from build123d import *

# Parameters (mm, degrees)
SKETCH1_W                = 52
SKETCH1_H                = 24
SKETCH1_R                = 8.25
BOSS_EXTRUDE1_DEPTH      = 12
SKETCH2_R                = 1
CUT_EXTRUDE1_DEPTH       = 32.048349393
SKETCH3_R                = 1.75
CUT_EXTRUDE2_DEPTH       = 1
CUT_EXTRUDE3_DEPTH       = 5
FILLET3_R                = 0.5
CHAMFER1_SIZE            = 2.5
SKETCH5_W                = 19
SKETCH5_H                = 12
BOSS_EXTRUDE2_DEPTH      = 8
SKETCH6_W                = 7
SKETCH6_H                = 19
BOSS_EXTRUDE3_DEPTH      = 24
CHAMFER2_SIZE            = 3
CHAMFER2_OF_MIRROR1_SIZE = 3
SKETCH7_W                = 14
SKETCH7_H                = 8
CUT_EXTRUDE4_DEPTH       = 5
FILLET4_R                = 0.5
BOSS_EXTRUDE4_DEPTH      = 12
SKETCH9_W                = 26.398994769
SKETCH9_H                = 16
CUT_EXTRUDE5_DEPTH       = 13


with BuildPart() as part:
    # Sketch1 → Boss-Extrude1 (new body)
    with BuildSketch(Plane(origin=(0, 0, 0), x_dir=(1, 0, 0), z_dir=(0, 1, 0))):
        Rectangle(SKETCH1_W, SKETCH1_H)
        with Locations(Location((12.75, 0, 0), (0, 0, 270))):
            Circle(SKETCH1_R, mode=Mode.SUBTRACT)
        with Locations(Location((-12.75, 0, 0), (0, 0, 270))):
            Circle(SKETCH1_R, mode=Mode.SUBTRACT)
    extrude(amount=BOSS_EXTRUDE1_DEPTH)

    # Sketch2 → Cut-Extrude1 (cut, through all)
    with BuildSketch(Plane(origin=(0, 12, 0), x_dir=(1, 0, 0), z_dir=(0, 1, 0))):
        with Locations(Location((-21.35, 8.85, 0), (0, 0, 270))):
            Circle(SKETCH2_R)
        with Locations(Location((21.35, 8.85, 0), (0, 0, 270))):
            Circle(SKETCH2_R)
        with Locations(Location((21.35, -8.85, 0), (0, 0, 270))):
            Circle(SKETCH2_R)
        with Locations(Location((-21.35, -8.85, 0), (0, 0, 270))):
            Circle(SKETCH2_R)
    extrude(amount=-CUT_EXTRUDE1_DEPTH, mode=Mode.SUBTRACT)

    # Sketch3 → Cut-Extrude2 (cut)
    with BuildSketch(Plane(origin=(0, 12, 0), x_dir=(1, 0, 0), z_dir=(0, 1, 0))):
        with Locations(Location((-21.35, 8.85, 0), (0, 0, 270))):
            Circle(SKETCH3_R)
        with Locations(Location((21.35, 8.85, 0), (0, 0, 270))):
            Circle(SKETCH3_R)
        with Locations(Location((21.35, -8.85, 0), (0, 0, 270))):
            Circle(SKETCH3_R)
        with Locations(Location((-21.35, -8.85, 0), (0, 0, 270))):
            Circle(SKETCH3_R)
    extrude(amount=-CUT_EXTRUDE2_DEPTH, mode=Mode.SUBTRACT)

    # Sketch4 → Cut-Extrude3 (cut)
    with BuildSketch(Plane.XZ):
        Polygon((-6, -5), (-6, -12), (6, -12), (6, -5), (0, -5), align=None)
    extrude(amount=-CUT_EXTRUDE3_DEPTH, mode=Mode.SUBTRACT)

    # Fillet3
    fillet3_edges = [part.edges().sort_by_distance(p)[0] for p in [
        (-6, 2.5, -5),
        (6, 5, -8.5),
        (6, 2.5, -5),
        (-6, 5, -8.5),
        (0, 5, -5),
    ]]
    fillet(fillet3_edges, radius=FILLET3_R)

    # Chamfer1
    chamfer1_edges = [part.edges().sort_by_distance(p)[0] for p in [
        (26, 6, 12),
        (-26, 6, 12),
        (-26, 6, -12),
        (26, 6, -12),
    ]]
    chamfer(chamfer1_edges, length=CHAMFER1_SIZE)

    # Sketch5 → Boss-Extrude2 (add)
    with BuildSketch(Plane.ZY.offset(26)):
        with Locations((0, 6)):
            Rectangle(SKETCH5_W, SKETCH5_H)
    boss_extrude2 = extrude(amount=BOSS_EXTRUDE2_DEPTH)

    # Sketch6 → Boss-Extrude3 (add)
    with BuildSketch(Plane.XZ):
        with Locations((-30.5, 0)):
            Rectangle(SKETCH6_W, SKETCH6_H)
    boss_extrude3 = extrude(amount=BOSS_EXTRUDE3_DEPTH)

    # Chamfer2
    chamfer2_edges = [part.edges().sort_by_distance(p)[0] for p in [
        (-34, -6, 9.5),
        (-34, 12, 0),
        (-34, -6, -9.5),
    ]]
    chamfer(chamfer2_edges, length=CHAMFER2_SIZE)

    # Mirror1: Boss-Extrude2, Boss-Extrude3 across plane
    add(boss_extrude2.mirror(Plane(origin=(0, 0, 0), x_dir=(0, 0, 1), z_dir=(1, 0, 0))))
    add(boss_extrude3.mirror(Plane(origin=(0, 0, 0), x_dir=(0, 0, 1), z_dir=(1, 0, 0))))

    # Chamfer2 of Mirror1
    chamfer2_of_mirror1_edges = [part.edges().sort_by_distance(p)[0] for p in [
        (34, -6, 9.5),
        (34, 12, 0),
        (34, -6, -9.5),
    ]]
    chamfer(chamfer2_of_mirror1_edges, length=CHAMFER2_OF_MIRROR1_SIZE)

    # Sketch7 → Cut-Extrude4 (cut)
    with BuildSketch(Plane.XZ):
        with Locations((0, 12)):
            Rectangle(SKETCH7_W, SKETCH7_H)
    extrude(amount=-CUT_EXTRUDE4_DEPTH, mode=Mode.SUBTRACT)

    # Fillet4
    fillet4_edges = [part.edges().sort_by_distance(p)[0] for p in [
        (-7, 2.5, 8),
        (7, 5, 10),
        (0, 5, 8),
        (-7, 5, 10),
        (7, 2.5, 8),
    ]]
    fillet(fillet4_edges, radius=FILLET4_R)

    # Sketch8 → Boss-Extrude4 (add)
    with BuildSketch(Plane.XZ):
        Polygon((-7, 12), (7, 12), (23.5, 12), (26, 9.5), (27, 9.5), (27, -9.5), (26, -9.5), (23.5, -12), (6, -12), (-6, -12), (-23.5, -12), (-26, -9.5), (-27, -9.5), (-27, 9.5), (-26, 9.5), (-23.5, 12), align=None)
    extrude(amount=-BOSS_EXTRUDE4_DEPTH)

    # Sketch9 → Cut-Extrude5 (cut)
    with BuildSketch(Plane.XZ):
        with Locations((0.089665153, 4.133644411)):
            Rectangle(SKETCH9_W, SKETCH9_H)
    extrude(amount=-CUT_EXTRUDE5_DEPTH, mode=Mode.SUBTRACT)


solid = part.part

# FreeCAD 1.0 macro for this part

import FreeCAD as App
import Part
import Sketcher
from FreeCAD import Vector
Q = App.Units.Quantity


def edges_at(feature, points):
    """Names of the edges that pass closest to the given points."""
    edges = feature.Shape.Edges
    near = lambda p: min(range(len(edges)), key=lambda i: edges[i].distToShape(Part.Vertex(*p))[0])
    return sorted({f"Edge{near(p) + 1}" for p in points})

doc = App.newDocument("Part")
params = doc.addObject("Spreadsheet::Sheet", "Params")
for row, (alias, value) in enumerate([
    ("sketch1_diameter", "16.5 mm"),
    ("sketch1_width", "52 mm"),
    ("sketch1_height", "24 mm"),
    ("pad1_length", "12 mm"),
    ("sketch2_diameter", "2 mm"),
    ("sketch3_diameter", "3.5 mm"),
    ("pocket2_length", "1 mm"),
    ("sketch4_width", "12 mm"),
    ("sketch4_height", "7 mm"),
    ("pocket3_length", "5 mm"),
    ("fillet_radius", "0.5 mm"),
    ("chamfer_size", "2.5 mm"),
    ("sketch5_width", "12 mm"),
    ("sketch5_height", "19 mm"),
    ("pad2_length", "8 mm"),
    ("sketch6_width", "7 mm"),
    ("sketch6_height", "19 mm"),
    ("pad3_length", "24 mm"),
    ("chamfer2_size", "3 mm"),
    ("chamfer3_size", "3 mm"),
    ("sketch7_width", "14 mm"),
    ("sketch7_height", "8 mm"),
    ("pocket4_length", "5 mm"),
    ("fillet2_radius", "0.5 mm"),
    ("sketch8_width", "47 mm"),
    ("sketch8_width2", "1 mm"),
    ("sketch8_height", "19 mm"),
    ("pad4_length", "12 mm"),
    ("sketch9_height", "16 mm"),
    ("pocket5_length", "13 mm"),
], start=1):
    params.set(f"A{row}", alias)
    params.set(f"B{row}", "=" + value)
    params.setAlias(f"B{row}", alias)

body = doc.addObject("PartDesign::Body", "Body")

# Sketch on XZ plane
sketch1 = body.newObject("Sketcher::SketchObject", "Sketch")
sketch1.AttachmentSupport = (doc.getObject("XZ_Plane"), [""])
sketch1.MapMode = "FlatFace"
sketch1.addGeometry([
    Part.LineSegment(Vector(-26, -12, 0), Vector(-26, 12, 0)),  # 0
    Part.LineSegment(Vector(-26, 12, 0), Vector(26, 12, 0)),  # 1
    Part.LineSegment(Vector(26, 12, 0), Vector(26, -12, 0)),  # 2
    Part.LineSegment(Vector(26, -12, 0), Vector(-26, -12, 0)),  # 3
    Part.Circle(Vector(-13, 0, 0), Vector(0, 0, 1), 8),  # 4
    Part.Circle(Vector(13, 0, 0), Vector(0, 0, 1), 8),  # 5
], False)
sketch1.addConstraint([
    Sketcher.Constraint("Coincident", 0, 2, 1, 1),
    Sketcher.Constraint("Coincident", 1, 2, 2, 1),
    Sketcher.Constraint("Coincident", 2, 2, 3, 1),
    Sketcher.Constraint("Coincident", 3, 2, 0, 1),
    Sketcher.Constraint("Vertical", 0),
    Sketcher.Constraint("Horizontal", 1),
    Sketcher.Constraint("Vertical", 2),
    Sketcher.Constraint("Horizontal", 3),
    Sketcher.Constraint("Equal", 4, 5),
    Sketcher.Constraint("Symmetric", 4, 3, 5, 3, -1, 1),
    Sketcher.Constraint("Symmetric", 0, 2, 2, 2, -1, 1),
    Sketcher.Constraint("PointOnObject", 4, 3, -1),
    Sketcher.Constraint("Diameter", 4, Q("16.5 mm")),
    Sketcher.Constraint("DistanceX", 1, 1, 1, 2, Q("52 mm")),
    Sketcher.Constraint("DistanceY", 0, 1, 0, 2, Q("24 mm")),
    Sketcher.Constraint("DistanceX", 4, 3, 5, 3, Q("25.5 mm")),
])
sketch1.setExpression("Constraints[12]", "Params.sketch1_diameter")
sketch1.setExpression("Constraints[13]", "Params.sketch1_width")
sketch1.setExpression("Constraints[14]", "Params.sketch1_height")
pad1 = body.newObject("PartDesign::Pad", "Pad")
pad1.Profile = sketch1
pad1.setExpression("Length", "Params.pad1_length")
pad1.Reversed = True

# Sketch on XZ plane
sketch2 = body.newObject("Sketcher::SketchObject", "Sketch001")
sketch2.AttachmentSupport = (doc.getObject("XZ_Plane"), [""])
sketch2.MapMode = "FlatFace"
sketch2.AttachmentOffset = App.Placement(Vector(0, 0, -12), App.Rotation())
sketch2.addGeometry([
    Part.Circle(Vector(-21.4, -8.8, 0), Vector(0, 0, 1), 1),
    Part.Circle(Vector(21.4, -8.8, 0), Vector(0, 0, 1), 1),
    Part.Circle(Vector(21.4, 8.8, 0), Vector(0, 0, 1), 1),
    Part.Circle(Vector(-21.4, 8.8, 0), Vector(0, 0, 1), 1),
], False)
sketch2.addConstraint([
    Sketcher.Constraint("Equal", 0, 1),
    Sketcher.Constraint("Equal", 1, 2),
    Sketcher.Constraint("Equal", 2, 3),
    Sketcher.Constraint("Symmetric", 0, 3, 2, 3, -1, 1),
    Sketcher.Constraint("Symmetric", 1, 3, 3, 3, -1, 1),
    Sketcher.Constraint("Symmetric", 0, 3, 1, 3, -2),
    Sketcher.Constraint("Diameter", 0, Q("2 mm")),
    Sketcher.Constraint("DistanceX", 0, 3, 1, 3, Q("42.7 mm")),
    Sketcher.Constraint("DistanceY", 1, 3, 2, 3, Q("17.7 mm")),
])
sketch2.setExpression("Constraints[6]", "Params.sketch2_diameter")
pocket1 = body.newObject("PartDesign::Pocket", "Pocket")
pocket1.Profile = sketch2
pocket1.Type = "ThroughAll"
pocket1.Reversed = True

# Sketch on XZ plane
sketch3 = body.newObject("Sketcher::SketchObject", "Sketch002")
sketch3.AttachmentSupport = (doc.getObject("XZ_Plane"), [""])
sketch3.MapMode = "FlatFace"
sketch3.AttachmentOffset = App.Placement(Vector(0, 0, -12), App.Rotation())
sketch3.addGeometry([
    Part.Circle(Vector(-21.4, -8.8, 0), Vector(0, 0, 1), 1.8),
    Part.Circle(Vector(21.4, -8.8, 0), Vector(0, 0, 1), 1.8),
    Part.Circle(Vector(21.4, 8.8, 0), Vector(0, 0, 1), 1.8),
    Part.Circle(Vector(-21.4, 8.8, 0), Vector(0, 0, 1), 1.8),
], False)
sketch3.addConstraint([
    Sketcher.Constraint("Equal", 0, 1),
    Sketcher.Constraint("Equal", 1, 2),
    Sketcher.Constraint("Equal", 2, 3),
    Sketcher.Constraint("Symmetric", 0, 3, 2, 3, -1, 1),
    Sketcher.Constraint("Symmetric", 1, 3, 3, 3, -1, 1),
    Sketcher.Constraint("Symmetric", 0, 3, 1, 3, -2),
    Sketcher.Constraint("Diameter", 0, Q("3.5 mm")),
    Sketcher.Constraint("DistanceX", 0, 3, 1, 3, Q("42.7 mm")),
    Sketcher.Constraint("DistanceY", 1, 3, 2, 3, Q("17.7 mm")),
])
sketch3.setExpression("Constraints[6]", "Params.sketch3_diameter")
pocket2 = body.newObject("PartDesign::Pocket", "Pocket001")
pocket2.Profile = sketch3
pocket2.setExpression("Length", "Params.pocket2_length")
pocket2.Reversed = True

# Sketch on XZ plane
sketch4 = body.newObject("Sketcher::SketchObject", "Sketch003")
sketch4.AttachmentSupport = (doc.getObject("XZ_Plane"), [""])
sketch4.MapMode = "FlatFace"
sketch4.addGeometry([
    Part.LineSegment(Vector(-6, -5, 0), Vector(-6, -12, 0)),
    Part.LineSegment(Vector(-6, -12, 0), Vector(6, -12, 0)),
    Part.LineSegment(Vector(6, -12, 0), Vector(6, -5, 0)),
    Part.LineSegment(Vector(6, -5, 0), Vector(-6, -5, 0)),
], False)
sketch4.addConstraint([
    Sketcher.Constraint("Coincident", 0, 2, 1, 1),
    Sketcher.Constraint("Coincident", 1, 2, 2, 1),
    Sketcher.Constraint("Coincident", 2, 2, 3, 1),
    Sketcher.Constraint("Coincident", 3, 2, 0, 1),
    Sketcher.Constraint("Vertical", 0),
    Sketcher.Constraint("Horizontal", 1),
    Sketcher.Constraint("Vertical", 2),
    Sketcher.Constraint("Horizontal", 3),
    Sketcher.Constraint("DistanceX", 1, 1, 1, 2, Q("12 mm")),
    Sketcher.Constraint("DistanceY", 0, 2, 0, 1, Q("7 mm")),
    Sketcher.Constraint("DistanceX", 0, 2, -1, 1, Q("6 mm")),
    Sketcher.Constraint("DistanceY", 0, 2, -1, 1, Q("12 mm")),
])
sketch4.setExpression("Constraints[8]", "Params.sketch4_width")
sketch4.setExpression("Constraints[9]", "Params.sketch4_height")
pocket3 = body.newObject("PartDesign::Pocket", "Pocket002")
pocket3.Profile = sketch4
pocket3.setExpression("Length", "Params.pocket3_length")
doc.recompute()

fillet = body.newObject("PartDesign::Fillet", "Fillet")
fillet.Base = (pocket3, edges_at(pocket3, [
    (-6, 2.5, -5),
    (6, 5, -8.5),
    (6, 2.5, -5),
    (-6, 5, -8.5),
    (0, 5, -5),
]))
fillet.setExpression("Radius", "Params.fillet_radius")
doc.recompute()

chamfer = body.newObject("PartDesign::Chamfer", "Chamfer")
chamfer.Base = (fillet, edges_at(fillet, [
    (26, 6, 12),
    (-26, 6, 12),
    (-26, 6, -12),
    (26, 6, -12),
]))
chamfer.setExpression("Size", "Params.chamfer_size")

# Sketch on YZ plane
sketch5 = body.newObject("Sketcher::SketchObject", "Sketch004")
sketch5.AttachmentSupport = (doc.getObject("YZ_Plane"), [""])
sketch5.MapMode = "FlatFace"
sketch5.AttachmentOffset = App.Placement(Vector(0, 0, -26), App.Rotation())
sketch5.addGeometry([
    Part.LineSegment(Vector(12, -10, 0), Vector(0, -10, 0)),
    Part.LineSegment(Vector(0, -10, 0), Vector(0, 10, 0)),
    Part.LineSegment(Vector(0, 10, 0), Vector(12, 10, 0)),
    Part.LineSegment(Vector(12, 10, 0), Vector(12, -10, 0)),
], False)
sketch5.addConstraint([
    Sketcher.Constraint("Coincident", 0, 2, 1, 1),
    Sketcher.Constraint("Coincident", 1, 2, 2, 1),
    Sketcher.Constraint("Coincident", 2, 2, 3, 1),
    Sketcher.Constraint("Coincident", 3, 2, 0, 1),
    Sketcher.Constraint("Horizontal", 0),
    Sketcher.Constraint("Vertical", 1),
    Sketcher.Constraint("Horizontal", 2),
    Sketcher.Constraint("Vertical", 3),
    Sketcher.Constraint("Symmetric", 0, 2, 1, 2, -1, 1),
    Sketcher.Constraint("DistanceX", 0, 2, 0, 1, Q("12 mm")),
    Sketcher.Constraint("DistanceY", 1, 1, 1, 2, Q("19 mm")),
])
sketch5.setExpression("Constraints[9]", "Params.sketch5_width")
sketch5.setExpression("Constraints[10]", "Params.sketch5_height")
pad2 = body.newObject("PartDesign::Pad", "Pad001")
pad2.Profile = sketch5
pad2.setExpression("Length", "Params.pad2_length")
pad2.Reversed = True

# Sketch on XZ plane
sketch6 = body.newObject("Sketcher::SketchObject", "Sketch005")
sketch6.AttachmentSupport = (doc.getObject("XZ_Plane"), [""])
sketch6.MapMode = "FlatFace"
sketch6.addGeometry([
    Part.LineSegment(Vector(-34, 10, 0), Vector(-34, -10, 0)),
    Part.LineSegment(Vector(-34, -10, 0), Vector(-27, -10, 0)),
    Part.LineSegment(Vector(-27, -10, 0), Vector(-27, 10, 0)),
    Part.LineSegment(Vector(-27, 10, 0), Vector(-34, 10, 0)),
], False)
sketch6.addConstraint([
    Sketcher.Constraint("Coincident", 0, 2, 1, 1),
    Sketcher.Constraint("Coincident", 1, 2, 2, 1),
    Sketcher.Constraint("Coincident", 2, 2, 3, 1),
    Sketcher.Constraint("Coincident", 3, 2, 0, 1),
    Sketcher.Constraint("Vertical", 0),
    Sketcher.Constraint("Horizontal", 1),
    Sketcher.Constraint("Vertical", 2),
    Sketcher.Constraint("Horizontal", 3),
    Sketcher.Constraint("DistanceX", 1, 1, 1, 2, Q("7 mm")),
    Sketcher.Constraint("DistanceY", 0, 2, 0, 1, Q("19 mm")),
    Sketcher.Constraint("DistanceX", 0, 2, -1, 1, Q("34 mm")),
    Sketcher.Constraint("DistanceY", 0, 2, -1, 1, Q("9.5 mm")),
])
sketch6.setExpression("Constraints[8]", "Params.sketch6_width")
sketch6.setExpression("Constraints[9]", "Params.sketch6_height")
pad3 = body.newObject("PartDesign::Pad", "Pad002")
pad3.Profile = sketch6
pad3.setExpression("Length", "Params.pad3_length")
doc.recompute()

chamfer2 = body.newObject("PartDesign::Chamfer", "Chamfer001")
chamfer2.Base = (pad3, edges_at(pad3, [(-34, -6, 9.5), (-34, 12, 0), (-34, -6, -9.5)]))
chamfer2.setExpression("Size", "Params.chamfer2_size")
doc.recompute()

mirrored = body.newObject("PartDesign::Mirrored", "Mirrored")
mirrored.Originals = [pad2, pad3]
mirrored.MirrorPlane = (doc.getObject("YZ_Plane"), [""])
body.Tip = mirrored
doc.recompute()

chamfer3 = body.newObject("PartDesign::Chamfer", "Chamfer002")
chamfer3.Base = (mirrored, edges_at(mirrored, [(34, -6, 9.5), (34, 12, 0), (34, -6, -9.5)]))
chamfer3.setExpression("Size", "Params.chamfer3_size")

# Sketch on XZ plane
sketch7 = body.newObject("Sketcher::SketchObject", "Sketch006")
sketch7.AttachmentSupport = (doc.getObject("XZ_Plane"), [""])
sketch7.MapMode = "FlatFace"
sketch7.addGeometry([
    Part.LineSegment(Vector(-7, 16, 0), Vector(-7, 8, 0)),
    Part.LineSegment(Vector(-7, 8, 0), Vector(7, 8, 0)),
    Part.LineSegment(Vector(7, 8, 0), Vector(7, 16, 0)),
    Part.LineSegment(Vector(7, 16, 0), Vector(-7, 16, 0)),
], False)
sketch7.addConstraint([
    Sketcher.Constraint("Coincident", 0, 2, 1, 1),
    Sketcher.Constraint("Coincident", 1, 2, 2, 1),
    Sketcher.Constraint("Coincident", 2, 2, 3, 1),
    Sketcher.Constraint("Coincident", 3, 2, 0, 1),
    Sketcher.Constraint("Vertical", 0),
    Sketcher.Constraint("Horizontal", 1),
    Sketcher.Constraint("Vertical", 2),
    Sketcher.Constraint("Horizontal", 3),
    Sketcher.Constraint("DistanceX", 1, 1, 1, 2, Q("14 mm")),
    Sketcher.Constraint("DistanceY", 0, 2, 0, 1, Q("8 mm")),
    Sketcher.Constraint("DistanceX", 0, 2, -1, 1, Q("7 mm")),
    Sketcher.Constraint("DistanceY", -1, 1, 0, 2, Q("8 mm")),
])
sketch7.setExpression("Constraints[8]", "Params.sketch7_width")
sketch7.setExpression("Constraints[9]", "Params.sketch7_height")
pocket4 = body.newObject("PartDesign::Pocket", "Pocket003")
pocket4.Profile = sketch7
pocket4.setExpression("Length", "Params.pocket4_length")
doc.recompute()

fillet2 = body.newObject("PartDesign::Fillet", "Fillet001")
fillet2.Base = (pocket4, edges_at(pocket4, [
    (-7, 2.5, 8),
    (7, 5, 10),
    (0, 5, 8),
    (-7, 5, 10),
    (7, 2.5, 8),
]))
fillet2.setExpression("Radius", "Params.fillet2_radius")

# Sketch on XZ plane
sketch8 = body.newObject("Sketcher::SketchObject", "Sketch007")
sketch8.AttachmentSupport = (doc.getObject("XZ_Plane"), [""])
sketch8.MapMode = "FlatFace"
sketch8.addGeometry([
    Part.LineSegment(Vector(23.5, 12, 0), Vector(-23.5, 12, 0)),  # 0
    Part.LineSegment(Vector(-23.5, 12, 0), Vector(-26, 9.5, 0)),  # 1
    Part.LineSegment(Vector(-26, 9.5, 0), Vector(-27, 9.5, 0)),  # 2
    Part.LineSegment(Vector(-27, 9.5, 0), Vector(-27, -9.5, 0)),  # 3
    Part.LineSegment(Vector(-27, -9.5, 0), Vector(-26, -9.5, 0)),  # 4
    Part.LineSegment(Vector(-26, -9.5, 0), Vector(-23.5, -12, 0)),  # 5
    Part.LineSegment(Vector(-23.5, -12, 0), Vector(23.5, -12, 0)),  # 6
    Part.LineSegment(Vector(23.5, -12, 0), Vector(26, -9.5, 0)),  # 7
    Part.LineSegment(Vector(26, -9.5, 0), Vector(27, -9.5, 0)),  # 8
    Part.LineSegment(Vector(27, -9.5, 0), Vector(27, 9.5, 0)),  # 9
    Part.LineSegment(Vector(27, 9.5, 0), Vector(26, 9.5, 0)),  # 10
    Part.LineSegment(Vector(26, 9.5, 0), Vector(23.5, 12, 0)),  # 11
], False)
sketch8.addConstraint([
    Sketcher.Constraint("Coincident", 0, 2, 1, 1),
    Sketcher.Constraint("Coincident", 1, 2, 2, 1),
    Sketcher.Constraint("Coincident", 2, 2, 3, 1),
    Sketcher.Constraint("Coincident", 3, 2, 4, 1),
    Sketcher.Constraint("Coincident", 4, 2, 5, 1),
    Sketcher.Constraint("Coincident", 5, 2, 6, 1),
    Sketcher.Constraint("Coincident", 6, 2, 7, 1),
    Sketcher.Constraint("Coincident", 7, 2, 8, 1),
    Sketcher.Constraint("Coincident", 8, 2, 9, 1),
    Sketcher.Constraint("Coincident", 9, 2, 10, 1),
    Sketcher.Constraint("Coincident", 10, 2, 11, 1),
    Sketcher.Constraint("Coincident", 11, 2, 0, 1),
    Sketcher.Constraint("Horizontal", 0),
    Sketcher.Constraint("Horizontal", 2),
    Sketcher.Constraint("Vertical", 3),
    Sketcher.Constraint("Horizontal", 4),
    Sketcher.Constraint("Horizontal", 6),
    Sketcher.Constraint("Horizontal", 8),
    Sketcher.Constraint("Vertical", 9),
    Sketcher.Constraint("Horizontal", 10),
    Sketcher.Constraint("Symmetric", 0, 2, 6, 2, -1, 1),
    Sketcher.Constraint("Symmetric", 1, 2, 7, 2, -1, 1),
    Sketcher.Constraint("Symmetric", 3, 2, 9, 2, -1, 1),
    Sketcher.Constraint("Symmetric", 4, 2, 7, 2, -2),
    Sketcher.Constraint("Perpendicular", 1, 5),
    Sketcher.Constraint("Perpendicular", 7, 11),
    Sketcher.Constraint("Vertical", 0, 2, 5, 2),
    Sketcher.Constraint("Vertical", 7, 2, 10, 2),
    Sketcher.Constraint("DistanceX", 0, 2, 0, 1, Q("47 mm")),
    Sketcher.Constraint("DistanceX", 2, 2, 2, 1, Q("1 mm")),
    Sketcher.Constraint("DistanceY", 3, 2, 3, 1, Q("19 mm")),
    Sketcher.Constraint("DistanceY", -1, 1, 0, 2, Q("12 mm")),
])
sketch8.setExpression("Constraints[28]", "Params.sketch8_width")
sketch8.setExpression("Constraints[29]", "Params.sketch8_width2")
sketch8.setExpression("Constraints[30]", "Params.sketch8_height")
pad4 = body.newObject("PartDesign::Pad", "Pad003")
pad4.Profile = sketch8
pad4.setExpression("Length", "Params.pad4_length")
pad4.Reversed = True

# Sketch on XZ plane
sketch9 = body.newObject("Sketcher::SketchObject", "Sketch008")
sketch9.AttachmentSupport = (doc.getObject("XZ_Plane"), [""])
sketch9.MapMode = "FlatFace"
sketch9.addGeometry([
    Part.LineSegment(Vector(-13, 12, 0), Vector(-13, -4, 0)),
    Part.LineSegment(Vector(-13, -4, 0), Vector(13, -4, 0)),
    Part.LineSegment(Vector(13, -4, 0), Vector(13, 12, 0)),
    Part.LineSegment(Vector(13, 12, 0), Vector(-13, 12, 0)),
], False)
sketch9.addConstraint([
    Sketcher.Constraint("Coincident", 0, 2, 1, 1),
    Sketcher.Constraint("Coincident", 1, 2, 2, 1),
    Sketcher.Constraint("Coincident", 2, 2, 3, 1),
    Sketcher.Constraint("Coincident", 3, 2, 0, 1),
    Sketcher.Constraint("Vertical", 0),
    Sketcher.Constraint("Horizontal", 1),
    Sketcher.Constraint("Vertical", 2),
    Sketcher.Constraint("Horizontal", 3),
    Sketcher.Constraint("DistanceY", 0, 2, 0, 1, Q("16 mm")),
    Sketcher.Constraint("DistanceX", 1, 1, 1, 2, Q("26.398995 mm")),
    Sketcher.Constraint("DistanceX", 0, 2, -1, 1, Q("13.109832 mm")),
    Sketcher.Constraint("DistanceY", 0, 2, -1, 1, Q("3.866356 mm")),
])
sketch9.setExpression("Constraints[8]", "Params.sketch9_height")
pocket5 = body.newObject("PartDesign::Pocket", "Pocket004")
pocket5.Profile = sketch9
pocket5.setExpression("Length", "Params.pocket5_length")

doc.recompute()
